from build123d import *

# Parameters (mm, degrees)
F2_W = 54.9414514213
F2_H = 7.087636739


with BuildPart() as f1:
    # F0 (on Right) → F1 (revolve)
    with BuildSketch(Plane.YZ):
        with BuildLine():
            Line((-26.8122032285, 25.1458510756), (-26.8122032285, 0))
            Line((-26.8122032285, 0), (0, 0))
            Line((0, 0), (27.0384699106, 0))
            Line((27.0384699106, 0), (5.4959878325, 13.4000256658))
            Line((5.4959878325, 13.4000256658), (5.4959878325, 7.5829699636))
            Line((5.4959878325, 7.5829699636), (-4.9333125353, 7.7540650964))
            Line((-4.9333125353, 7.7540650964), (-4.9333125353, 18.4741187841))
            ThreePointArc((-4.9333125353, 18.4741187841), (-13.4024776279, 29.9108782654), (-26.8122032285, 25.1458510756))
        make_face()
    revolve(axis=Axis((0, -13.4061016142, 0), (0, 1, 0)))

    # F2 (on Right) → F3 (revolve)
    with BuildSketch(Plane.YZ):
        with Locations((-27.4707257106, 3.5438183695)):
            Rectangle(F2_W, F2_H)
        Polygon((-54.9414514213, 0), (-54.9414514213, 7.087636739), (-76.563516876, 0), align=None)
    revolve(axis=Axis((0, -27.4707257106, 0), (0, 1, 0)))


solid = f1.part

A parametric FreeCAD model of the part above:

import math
import FreeCAD as App
import Part
import Sketcher

V = App.Vector
Q = App.Units.Quantity

doc = App.newDocument("Part")
body = doc.addObject("PartDesign::Body", "Body")

sketch1 = body.newObject("Sketcher::SketchObject", "Sketch")
sketch1.AttachmentSupport = (doc.getObject("YZ_Plane"), [""])
sketch1.MapMode = "FlatFace"
sketch1.addGeometry([
    Part.LineSegment(V(-27, 25, 0), V(-27, 0, 0)),
    Part.LineSegment(V(-27, 0, 0), V(27, 0, 0)),
    Part.LineSegment(V(27, 0, 0), V(5, 13, 0)),
    Part.LineSegment(V(5, 13, 0), V(5, 8, 0)),
    Part.LineSegment(V(5, 8, 0), V(-5, 8, 0)),
    Part.LineSegment(V(-5, 8, 0), V(-5, 18, 0)),
    Part.ArcOfCircle(Part.Circle(V(-17, 18, 0), V(0, 0, 1), 12), math.radians(0), math.radians(146)),
], False)
sketch1.addConstraint([
    Sketcher.Constraint("Coincident", 0, 2, 1, 1),
    Sketcher.Constraint("Coincident", 1, 2, 2, 1),
    Sketcher.Constraint("Coincident", 2, 2, 3, 1),
    Sketcher.Constraint("Coincident", 3, 2, 4, 1),
    Sketcher.Constraint("Coincident", 4, 2, 5, 1),
    Sketcher.Constraint("Tangent", 5, 2, 6, 1),
    Sketcher.Constraint("Coincident", 6, 2, 0, 1),
    Sketcher.Constraint("Vertical", 0),
    Sketcher.Constraint("Horizontal", 1),
    Sketcher.Constraint("Vertical", 3),
    Sketcher.Constraint("Vertical", 5),
    Sketcher.Constraint("PointOnObject", 0, 2, -1),
    Sketcher.Constraint("Radius", 6, Q("11.956682 mm")),
    Sketcher.Constraint("DistanceY", 0, 2, 0, 1, Q("25.145851 mm")),
    Sketcher.Constraint("DistanceX", 4, 2, 3, 2, Q("10.4293 mm")),
    Sketcher.Constraint("DistanceX", 1, 1, 1, 2, Q("53.850673 mm")),
    Sketcher.Constraint("DistanceY", 3, 2, 3, 1, Q("5.817056 mm")),
    Sketcher.Constraint("DistanceY", 5, 1, 5, 2, Q("10.720054 mm")),
    Sketcher.Constraint("DistanceY", -1, 1, 6, 3, Q("18.474119 mm")),
    Sketcher.Constraint("DistanceX", -1, 1, 1, 2, Q("27.03847 mm")),
    Sketcher.Constraint("DistanceY", -1, 1, 3, 2, Q("7.58297 mm")),
])
revolution = body.newObject("PartDesign::Revolution", "Revolution")
revolution.Profile = sketch1
revolution.ReferenceAxis = (sketch1, ["H_Axis"])
revolution.Angle = 360

sketch2 = body.newObject("Sketcher::SketchObject", "Sketch001")
sketch2.AttachmentSupport = (doc.getObject("YZ_Plane"), [""])
sketch2.MapMode = "FlatFace"
sketch2.addGeometry([
    Part.LineSegment(V(0, 0, 0), V(0, 7, 0)),
    Part.LineSegment(V(0, 7, 0), V(-55, 7, 0)),
    Part.LineSegment(V(-55, 7, 0), V(-77, 0, 0)),
    Part.LineSegment(V(-77, 0, 0), V(0, 0, 0)),
], False)
sketch2.addConstraint([
    Sketcher.Constraint("Coincident", 0, 2, 1, 1),
    Sketcher.Constraint("Coincident", 1, 2, 2, 1),
    Sketcher.Constraint("Coincident", 2, 2, 3, 1),
    Sketcher.Constraint("Coincident", 3, 2, 0, 1),
    Sketcher.Constraint("Vertical", 0),
    Sketcher.Constraint("Horizontal", 1),
    Sketcher.Constraint("Horizontal", 3),
    Sketcher.Constraint("Coincident", 3, 2, -1, 1),
    Sketcher.Constraint("DistanceX", 1, 2, 1, 1, Q("54.941451 mm")),
    Sketcher.Constraint("DistanceX", 3, 1, 3, 2, Q("76.563517 mm")),
    Sketcher.Constraint("DistanceY", 0, 1, 0, 2, Q("7.087637 mm")),
])
revolution2 = body.newObject("PartDesign::Revolution", "Revolution001")
revolution2.Profile = sketch2
revolution2.ReferenceAxis = (sketch2, ["H_Axis"])
revolution2.Angle = 360

doc.recompute()
